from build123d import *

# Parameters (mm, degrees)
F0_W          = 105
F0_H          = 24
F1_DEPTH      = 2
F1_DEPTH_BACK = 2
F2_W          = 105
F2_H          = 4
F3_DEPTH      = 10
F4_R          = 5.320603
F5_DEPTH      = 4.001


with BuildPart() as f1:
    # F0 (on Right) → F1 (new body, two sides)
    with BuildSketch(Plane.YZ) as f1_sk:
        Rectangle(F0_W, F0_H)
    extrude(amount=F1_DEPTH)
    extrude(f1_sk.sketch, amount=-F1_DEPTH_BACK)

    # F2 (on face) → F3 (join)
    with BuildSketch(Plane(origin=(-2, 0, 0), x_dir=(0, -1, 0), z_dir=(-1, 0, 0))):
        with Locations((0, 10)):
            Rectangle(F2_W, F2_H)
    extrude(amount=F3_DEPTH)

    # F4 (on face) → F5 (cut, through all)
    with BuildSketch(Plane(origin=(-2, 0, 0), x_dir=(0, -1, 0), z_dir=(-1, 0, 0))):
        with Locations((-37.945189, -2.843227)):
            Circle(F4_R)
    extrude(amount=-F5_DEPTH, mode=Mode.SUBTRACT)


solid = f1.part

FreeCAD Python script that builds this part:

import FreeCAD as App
import Part
import Sketcher
from FreeCAD import Vector
Q = App.Units.Quantity


def add_polygon(sketch, points):
    """Adds a closed chain of lines whose ends are joined by coincident constraints."""
    first, n = sketch.GeometryCount, len(points)
    for a, b in zip(points, points[1:] + points[:1]):
        sketch.addGeometry(Part.LineSegment(App.Vector(*a, 0), App.Vector(*b, 0)), False)
    for i in range(n):
        sketch.addConstraint(Sketcher.Constraint("Coincident", first + i, 2, first + (i + 1) % n, 1))

doc = App.newDocument("Part")
body = doc.addObject("PartDesign::Body", "Body")

# Sketch on YZ plane
sketch1 = body.newObject("Sketcher::SketchObject", "Sketch")
sketch1.AttachmentSupport = (doc.getObject("YZ_Plane"), [""])
sketch1.MapMode = "FlatFace"
add_polygon(sketch1, [(-52.5, 12), (-52.5, -12), (52.5, -12), (52.5, 12)])  # lines 0-3
sketch1.addConstraint([
    Sketcher.Constraint("Vertical", 0),
    Sketcher.Constraint("Horizontal", 1),
    Sketcher.Constraint("Vertical", 2),
    Sketcher.Constraint("Horizontal", 3),
    Sketcher.Constraint("Symmetric", 0, 2, 2, 2, -1, 1),
    Sketcher.Constraint("DistanceX", 1, 1, 1, 2, Q("105 mm")),
    Sketcher.Constraint("DistanceY", 0, 2, 0, 1, Q("24 mm")),
])
pad1 = body.newObject("PartDesign::Pad", "Pad")
pad1.Profile = sketch1
pad1.Type = "TwoLengths"
pad1.Length = 2
pad1.Length2 = 2

# Sketch on YZ plane
sketch2 = body.newObject("Sketcher::SketchObject", "Sketch001")
sketch2.AttachmentSupport = (doc.getObject("YZ_Plane"), [""])
sketch2.MapMode = "FlatFace"
sketch2.AttachmentOffset = App.Placement(Vector(0, 0, -2), App.Rotation())
add_polygon(sketch2, [(52.5, 12), (52.5, 8), (-52.5, 8), (-52.5, 12)])  # lines 0-3
sketch2.addConstraint([
    Sketcher.Constraint("Vertical", 0),
    Sketcher.Constraint("Horizontal", 1),
    Sketcher.Constraint("Vertical", 2),
    Sketcher.Constraint("Horizontal", 3),
    Sketcher.Constraint("DistanceX", 1, 2, 1, 1, Q("105 mm")),
    Sketcher.Constraint("DistanceY", 0, 2, 0, 1, Q("4 mm")),
    Sketcher.Constraint("DistanceY", -1, 1, 0, 2, Q("8 mm")),
    Sketcher.Constraint("DistanceX", -1, 1, 0, 2, Q("52.5 mm")),
])
pad2 = body.newObject("PartDesign::Pad", "Pad001")
pad2.Profile = sketch2
pad2.Length = 10
pad2.Reversed = True

# Sketch on YZ plane
sketch3 = body.newObject("Sketcher::SketchObject", "Sketch002")
sketch3.AttachmentSupport = (doc.getObject("YZ_Plane"), [""])
sketch3.MapMode = "FlatFace"
sketch3.AttachmentOffset = App.Placement(Vector(0, 0, -2), App.Rotation())
sketch3.addGeometry(Part.Circle(Vector(37.945189, -2.843227, 0), Vector(0, 0, 1), 5.320603), False)
sketch3.addConstraint([
    Sketcher.Constraint("Diameter", 0, Q("10.641206 mm")),
    Sketcher.Constraint("DistanceX", -1, 1, 0, 3, Q("37.945189 mm")),
    Sketcher.Constraint("DistanceY", 0, 3, -1, 1, Q("2.843227 mm")),
])
pocket1 = body.newObject("PartDesign::Pocket", "Pocket")
pocket1.Profile = sketch3
pocket1.Type = "ThroughAll"
pocket1.Reversed = True

doc.recompute()
